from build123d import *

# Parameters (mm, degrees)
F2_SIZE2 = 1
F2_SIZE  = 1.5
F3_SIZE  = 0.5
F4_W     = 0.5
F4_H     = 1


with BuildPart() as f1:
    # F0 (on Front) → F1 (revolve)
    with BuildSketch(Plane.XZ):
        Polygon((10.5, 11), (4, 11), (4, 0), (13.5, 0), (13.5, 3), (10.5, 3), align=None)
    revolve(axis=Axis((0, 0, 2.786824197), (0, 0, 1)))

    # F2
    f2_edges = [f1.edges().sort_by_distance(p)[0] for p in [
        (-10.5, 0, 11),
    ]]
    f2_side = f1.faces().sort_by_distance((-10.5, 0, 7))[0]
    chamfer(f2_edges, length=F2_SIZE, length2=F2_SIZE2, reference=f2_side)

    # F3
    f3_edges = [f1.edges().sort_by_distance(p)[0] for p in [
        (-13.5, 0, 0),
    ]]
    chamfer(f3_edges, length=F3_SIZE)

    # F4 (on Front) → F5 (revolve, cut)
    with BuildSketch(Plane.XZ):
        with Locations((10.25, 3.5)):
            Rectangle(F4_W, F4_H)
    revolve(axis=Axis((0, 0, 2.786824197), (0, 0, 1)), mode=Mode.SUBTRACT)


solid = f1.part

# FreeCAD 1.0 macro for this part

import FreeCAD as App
import Part
import Sketcher

V = App.Vector


def edges_at(feature, points):
    """Names of the edges that pass closest to the given points."""
    edges = feature.Shape.Edges
    near = lambda p: min(range(len(edges)), key=lambda i: edges[i].distToShape(Part.Vertex(*p))[0])
    return sorted({f"Edge{near(p) + 1}" for p in points})


def add_polygon(sketch, points):
    """Adds a closed chain of lines whose ends are joined by coincident constraints."""
    first, n = sketch.GeometryCount, len(points)
    for a, b in zip(points, points[1:] + points[:1]):
        sketch.addGeometry(Part.LineSegment(App.Vector(*a, 0), App.Vector(*b, 0)), False)
    for i in range(n):
        sketch.addConstraint(Sketcher.Constraint("Coincident", first + i, 2, first + (i + 1) % n, 1))

doc = App.newDocument("Part")
body = doc.addObject("PartDesign::Body", "Body")

# Sketch on XZ plane
sketch1 = body.newObject("Sketcher::SketchObject", "Sketch")
sketch1.AttachmentSupport = (doc.getObject("XZ_Plane"), [""])
sketch1.MapMode = "FlatFace"
add_polygon(sketch1, [(10.5, 11), (4, 11), (4, 0), (13.5, 0), (13.5, 3), (10.5, 3)])  # lines 0-5
sketch1.addConstraint(Sketcher.Constraint("Horizontal", 0))
sketch1.addConstraint(Sketcher.Constraint("Vertical", 1))
sketch1.addConstraint(Sketcher.Constraint("Horizontal", 2))
sketch1.addConstraint(Sketcher.Constraint("Vertical", 3))
sketch1.addConstraint(Sketcher.Constraint("Horizontal", 4))
sketch1.addConstraint(Sketcher.Constraint("Vertical", 5))
sketch1.addConstraint(Sketcher.Constraint("PointOnObject", 1, 2, -1))
sketch1.addConstraint(Sketcher.Constraint("Equal", 4, 3))
sketch1.addConstraint(Sketcher.Constraint("DistanceX", 4, 2, 4, 1, 3.0))
sketch1.addConstraint(Sketcher.Constraint("DistanceY", 1, 2, 1, 1, 11.0))
sketch1.addConstraint(Sketcher.Constraint("DistanceX", 0, 2, 0, 1, 6.5))
sketch1.addConstraint(Sketcher.Constraint("DistanceX", -1, 1, 0, 2, 4.0))
revolution = body.newObject("PartDesign::Revolution", "Revolution")
revolution.Profile = sketch1
revolution.ReferenceAxis = (sketch1, ["V_Axis"])
revolution.Angle = 360
doc.recompute()

chamfer = body.newObject("PartDesign::Chamfer", "Chamfer")
chamfer.Base = (revolution, edges_at(revolution, [(-10.5, 0, 11)]))
chamfer.ChamferType = "Two distances"
chamfer.Size = 1.5
chamfer.Size2 = 1
chamfer.FlipDirection = True
doc.recompute()

chamfer2 = body.newObject("PartDesign::Chamfer", "Chamfer001")
chamfer2.Base = (chamfer, edges_at(chamfer, [(-13.5, 0, 0)]))
chamfer2.Size = 0.5

# Sketch on XZ plane
sketch2 = body.newObject("Sketcher::SketchObject", "Sketch001")
sketch2.AttachmentSupport = (doc.getObject("XZ_Plane"), [""])
sketch2.MapMode = "FlatFace"
add_polygon(sketch2, [(10, 4), (10, 3), (10.5, 3), (10.5, 4)])  # lines 0-3
sketch2.addConstraint(Sketcher.Constraint("Vertical", 0))
sketch2.addConstraint(Sketcher.Constraint("Horizontal", 1))
sketch2.addConstraint(Sketcher.Constraint("Vertical", 2))
sketch2.addConstraint(Sketcher.Constraint("Horizontal", 3))
sketch2.addConstraint(Sketcher.Constraint("DistanceY", 0, 2, 0, 1, 1.0))
sketch2.addConstraint(Sketcher.Constraint("DistanceX", 1, 1, 1, 2, 0.5))
sketch2.addConstraint(Sketcher.Constraint("DistanceX", -1, 1, 0, 2, 10.0))
sketch2.addConstraint(Sketcher.Constraint("DistanceY", -1, 1, 0, 2, 3.0))
groove = body.newObject("PartDesign::Groove", "Groove")
groove.Profile = sketch2
groove.ReferenceAxis = (sketch2, ["V_Axis"])
groove.Angle = 360

doc.recompute()
